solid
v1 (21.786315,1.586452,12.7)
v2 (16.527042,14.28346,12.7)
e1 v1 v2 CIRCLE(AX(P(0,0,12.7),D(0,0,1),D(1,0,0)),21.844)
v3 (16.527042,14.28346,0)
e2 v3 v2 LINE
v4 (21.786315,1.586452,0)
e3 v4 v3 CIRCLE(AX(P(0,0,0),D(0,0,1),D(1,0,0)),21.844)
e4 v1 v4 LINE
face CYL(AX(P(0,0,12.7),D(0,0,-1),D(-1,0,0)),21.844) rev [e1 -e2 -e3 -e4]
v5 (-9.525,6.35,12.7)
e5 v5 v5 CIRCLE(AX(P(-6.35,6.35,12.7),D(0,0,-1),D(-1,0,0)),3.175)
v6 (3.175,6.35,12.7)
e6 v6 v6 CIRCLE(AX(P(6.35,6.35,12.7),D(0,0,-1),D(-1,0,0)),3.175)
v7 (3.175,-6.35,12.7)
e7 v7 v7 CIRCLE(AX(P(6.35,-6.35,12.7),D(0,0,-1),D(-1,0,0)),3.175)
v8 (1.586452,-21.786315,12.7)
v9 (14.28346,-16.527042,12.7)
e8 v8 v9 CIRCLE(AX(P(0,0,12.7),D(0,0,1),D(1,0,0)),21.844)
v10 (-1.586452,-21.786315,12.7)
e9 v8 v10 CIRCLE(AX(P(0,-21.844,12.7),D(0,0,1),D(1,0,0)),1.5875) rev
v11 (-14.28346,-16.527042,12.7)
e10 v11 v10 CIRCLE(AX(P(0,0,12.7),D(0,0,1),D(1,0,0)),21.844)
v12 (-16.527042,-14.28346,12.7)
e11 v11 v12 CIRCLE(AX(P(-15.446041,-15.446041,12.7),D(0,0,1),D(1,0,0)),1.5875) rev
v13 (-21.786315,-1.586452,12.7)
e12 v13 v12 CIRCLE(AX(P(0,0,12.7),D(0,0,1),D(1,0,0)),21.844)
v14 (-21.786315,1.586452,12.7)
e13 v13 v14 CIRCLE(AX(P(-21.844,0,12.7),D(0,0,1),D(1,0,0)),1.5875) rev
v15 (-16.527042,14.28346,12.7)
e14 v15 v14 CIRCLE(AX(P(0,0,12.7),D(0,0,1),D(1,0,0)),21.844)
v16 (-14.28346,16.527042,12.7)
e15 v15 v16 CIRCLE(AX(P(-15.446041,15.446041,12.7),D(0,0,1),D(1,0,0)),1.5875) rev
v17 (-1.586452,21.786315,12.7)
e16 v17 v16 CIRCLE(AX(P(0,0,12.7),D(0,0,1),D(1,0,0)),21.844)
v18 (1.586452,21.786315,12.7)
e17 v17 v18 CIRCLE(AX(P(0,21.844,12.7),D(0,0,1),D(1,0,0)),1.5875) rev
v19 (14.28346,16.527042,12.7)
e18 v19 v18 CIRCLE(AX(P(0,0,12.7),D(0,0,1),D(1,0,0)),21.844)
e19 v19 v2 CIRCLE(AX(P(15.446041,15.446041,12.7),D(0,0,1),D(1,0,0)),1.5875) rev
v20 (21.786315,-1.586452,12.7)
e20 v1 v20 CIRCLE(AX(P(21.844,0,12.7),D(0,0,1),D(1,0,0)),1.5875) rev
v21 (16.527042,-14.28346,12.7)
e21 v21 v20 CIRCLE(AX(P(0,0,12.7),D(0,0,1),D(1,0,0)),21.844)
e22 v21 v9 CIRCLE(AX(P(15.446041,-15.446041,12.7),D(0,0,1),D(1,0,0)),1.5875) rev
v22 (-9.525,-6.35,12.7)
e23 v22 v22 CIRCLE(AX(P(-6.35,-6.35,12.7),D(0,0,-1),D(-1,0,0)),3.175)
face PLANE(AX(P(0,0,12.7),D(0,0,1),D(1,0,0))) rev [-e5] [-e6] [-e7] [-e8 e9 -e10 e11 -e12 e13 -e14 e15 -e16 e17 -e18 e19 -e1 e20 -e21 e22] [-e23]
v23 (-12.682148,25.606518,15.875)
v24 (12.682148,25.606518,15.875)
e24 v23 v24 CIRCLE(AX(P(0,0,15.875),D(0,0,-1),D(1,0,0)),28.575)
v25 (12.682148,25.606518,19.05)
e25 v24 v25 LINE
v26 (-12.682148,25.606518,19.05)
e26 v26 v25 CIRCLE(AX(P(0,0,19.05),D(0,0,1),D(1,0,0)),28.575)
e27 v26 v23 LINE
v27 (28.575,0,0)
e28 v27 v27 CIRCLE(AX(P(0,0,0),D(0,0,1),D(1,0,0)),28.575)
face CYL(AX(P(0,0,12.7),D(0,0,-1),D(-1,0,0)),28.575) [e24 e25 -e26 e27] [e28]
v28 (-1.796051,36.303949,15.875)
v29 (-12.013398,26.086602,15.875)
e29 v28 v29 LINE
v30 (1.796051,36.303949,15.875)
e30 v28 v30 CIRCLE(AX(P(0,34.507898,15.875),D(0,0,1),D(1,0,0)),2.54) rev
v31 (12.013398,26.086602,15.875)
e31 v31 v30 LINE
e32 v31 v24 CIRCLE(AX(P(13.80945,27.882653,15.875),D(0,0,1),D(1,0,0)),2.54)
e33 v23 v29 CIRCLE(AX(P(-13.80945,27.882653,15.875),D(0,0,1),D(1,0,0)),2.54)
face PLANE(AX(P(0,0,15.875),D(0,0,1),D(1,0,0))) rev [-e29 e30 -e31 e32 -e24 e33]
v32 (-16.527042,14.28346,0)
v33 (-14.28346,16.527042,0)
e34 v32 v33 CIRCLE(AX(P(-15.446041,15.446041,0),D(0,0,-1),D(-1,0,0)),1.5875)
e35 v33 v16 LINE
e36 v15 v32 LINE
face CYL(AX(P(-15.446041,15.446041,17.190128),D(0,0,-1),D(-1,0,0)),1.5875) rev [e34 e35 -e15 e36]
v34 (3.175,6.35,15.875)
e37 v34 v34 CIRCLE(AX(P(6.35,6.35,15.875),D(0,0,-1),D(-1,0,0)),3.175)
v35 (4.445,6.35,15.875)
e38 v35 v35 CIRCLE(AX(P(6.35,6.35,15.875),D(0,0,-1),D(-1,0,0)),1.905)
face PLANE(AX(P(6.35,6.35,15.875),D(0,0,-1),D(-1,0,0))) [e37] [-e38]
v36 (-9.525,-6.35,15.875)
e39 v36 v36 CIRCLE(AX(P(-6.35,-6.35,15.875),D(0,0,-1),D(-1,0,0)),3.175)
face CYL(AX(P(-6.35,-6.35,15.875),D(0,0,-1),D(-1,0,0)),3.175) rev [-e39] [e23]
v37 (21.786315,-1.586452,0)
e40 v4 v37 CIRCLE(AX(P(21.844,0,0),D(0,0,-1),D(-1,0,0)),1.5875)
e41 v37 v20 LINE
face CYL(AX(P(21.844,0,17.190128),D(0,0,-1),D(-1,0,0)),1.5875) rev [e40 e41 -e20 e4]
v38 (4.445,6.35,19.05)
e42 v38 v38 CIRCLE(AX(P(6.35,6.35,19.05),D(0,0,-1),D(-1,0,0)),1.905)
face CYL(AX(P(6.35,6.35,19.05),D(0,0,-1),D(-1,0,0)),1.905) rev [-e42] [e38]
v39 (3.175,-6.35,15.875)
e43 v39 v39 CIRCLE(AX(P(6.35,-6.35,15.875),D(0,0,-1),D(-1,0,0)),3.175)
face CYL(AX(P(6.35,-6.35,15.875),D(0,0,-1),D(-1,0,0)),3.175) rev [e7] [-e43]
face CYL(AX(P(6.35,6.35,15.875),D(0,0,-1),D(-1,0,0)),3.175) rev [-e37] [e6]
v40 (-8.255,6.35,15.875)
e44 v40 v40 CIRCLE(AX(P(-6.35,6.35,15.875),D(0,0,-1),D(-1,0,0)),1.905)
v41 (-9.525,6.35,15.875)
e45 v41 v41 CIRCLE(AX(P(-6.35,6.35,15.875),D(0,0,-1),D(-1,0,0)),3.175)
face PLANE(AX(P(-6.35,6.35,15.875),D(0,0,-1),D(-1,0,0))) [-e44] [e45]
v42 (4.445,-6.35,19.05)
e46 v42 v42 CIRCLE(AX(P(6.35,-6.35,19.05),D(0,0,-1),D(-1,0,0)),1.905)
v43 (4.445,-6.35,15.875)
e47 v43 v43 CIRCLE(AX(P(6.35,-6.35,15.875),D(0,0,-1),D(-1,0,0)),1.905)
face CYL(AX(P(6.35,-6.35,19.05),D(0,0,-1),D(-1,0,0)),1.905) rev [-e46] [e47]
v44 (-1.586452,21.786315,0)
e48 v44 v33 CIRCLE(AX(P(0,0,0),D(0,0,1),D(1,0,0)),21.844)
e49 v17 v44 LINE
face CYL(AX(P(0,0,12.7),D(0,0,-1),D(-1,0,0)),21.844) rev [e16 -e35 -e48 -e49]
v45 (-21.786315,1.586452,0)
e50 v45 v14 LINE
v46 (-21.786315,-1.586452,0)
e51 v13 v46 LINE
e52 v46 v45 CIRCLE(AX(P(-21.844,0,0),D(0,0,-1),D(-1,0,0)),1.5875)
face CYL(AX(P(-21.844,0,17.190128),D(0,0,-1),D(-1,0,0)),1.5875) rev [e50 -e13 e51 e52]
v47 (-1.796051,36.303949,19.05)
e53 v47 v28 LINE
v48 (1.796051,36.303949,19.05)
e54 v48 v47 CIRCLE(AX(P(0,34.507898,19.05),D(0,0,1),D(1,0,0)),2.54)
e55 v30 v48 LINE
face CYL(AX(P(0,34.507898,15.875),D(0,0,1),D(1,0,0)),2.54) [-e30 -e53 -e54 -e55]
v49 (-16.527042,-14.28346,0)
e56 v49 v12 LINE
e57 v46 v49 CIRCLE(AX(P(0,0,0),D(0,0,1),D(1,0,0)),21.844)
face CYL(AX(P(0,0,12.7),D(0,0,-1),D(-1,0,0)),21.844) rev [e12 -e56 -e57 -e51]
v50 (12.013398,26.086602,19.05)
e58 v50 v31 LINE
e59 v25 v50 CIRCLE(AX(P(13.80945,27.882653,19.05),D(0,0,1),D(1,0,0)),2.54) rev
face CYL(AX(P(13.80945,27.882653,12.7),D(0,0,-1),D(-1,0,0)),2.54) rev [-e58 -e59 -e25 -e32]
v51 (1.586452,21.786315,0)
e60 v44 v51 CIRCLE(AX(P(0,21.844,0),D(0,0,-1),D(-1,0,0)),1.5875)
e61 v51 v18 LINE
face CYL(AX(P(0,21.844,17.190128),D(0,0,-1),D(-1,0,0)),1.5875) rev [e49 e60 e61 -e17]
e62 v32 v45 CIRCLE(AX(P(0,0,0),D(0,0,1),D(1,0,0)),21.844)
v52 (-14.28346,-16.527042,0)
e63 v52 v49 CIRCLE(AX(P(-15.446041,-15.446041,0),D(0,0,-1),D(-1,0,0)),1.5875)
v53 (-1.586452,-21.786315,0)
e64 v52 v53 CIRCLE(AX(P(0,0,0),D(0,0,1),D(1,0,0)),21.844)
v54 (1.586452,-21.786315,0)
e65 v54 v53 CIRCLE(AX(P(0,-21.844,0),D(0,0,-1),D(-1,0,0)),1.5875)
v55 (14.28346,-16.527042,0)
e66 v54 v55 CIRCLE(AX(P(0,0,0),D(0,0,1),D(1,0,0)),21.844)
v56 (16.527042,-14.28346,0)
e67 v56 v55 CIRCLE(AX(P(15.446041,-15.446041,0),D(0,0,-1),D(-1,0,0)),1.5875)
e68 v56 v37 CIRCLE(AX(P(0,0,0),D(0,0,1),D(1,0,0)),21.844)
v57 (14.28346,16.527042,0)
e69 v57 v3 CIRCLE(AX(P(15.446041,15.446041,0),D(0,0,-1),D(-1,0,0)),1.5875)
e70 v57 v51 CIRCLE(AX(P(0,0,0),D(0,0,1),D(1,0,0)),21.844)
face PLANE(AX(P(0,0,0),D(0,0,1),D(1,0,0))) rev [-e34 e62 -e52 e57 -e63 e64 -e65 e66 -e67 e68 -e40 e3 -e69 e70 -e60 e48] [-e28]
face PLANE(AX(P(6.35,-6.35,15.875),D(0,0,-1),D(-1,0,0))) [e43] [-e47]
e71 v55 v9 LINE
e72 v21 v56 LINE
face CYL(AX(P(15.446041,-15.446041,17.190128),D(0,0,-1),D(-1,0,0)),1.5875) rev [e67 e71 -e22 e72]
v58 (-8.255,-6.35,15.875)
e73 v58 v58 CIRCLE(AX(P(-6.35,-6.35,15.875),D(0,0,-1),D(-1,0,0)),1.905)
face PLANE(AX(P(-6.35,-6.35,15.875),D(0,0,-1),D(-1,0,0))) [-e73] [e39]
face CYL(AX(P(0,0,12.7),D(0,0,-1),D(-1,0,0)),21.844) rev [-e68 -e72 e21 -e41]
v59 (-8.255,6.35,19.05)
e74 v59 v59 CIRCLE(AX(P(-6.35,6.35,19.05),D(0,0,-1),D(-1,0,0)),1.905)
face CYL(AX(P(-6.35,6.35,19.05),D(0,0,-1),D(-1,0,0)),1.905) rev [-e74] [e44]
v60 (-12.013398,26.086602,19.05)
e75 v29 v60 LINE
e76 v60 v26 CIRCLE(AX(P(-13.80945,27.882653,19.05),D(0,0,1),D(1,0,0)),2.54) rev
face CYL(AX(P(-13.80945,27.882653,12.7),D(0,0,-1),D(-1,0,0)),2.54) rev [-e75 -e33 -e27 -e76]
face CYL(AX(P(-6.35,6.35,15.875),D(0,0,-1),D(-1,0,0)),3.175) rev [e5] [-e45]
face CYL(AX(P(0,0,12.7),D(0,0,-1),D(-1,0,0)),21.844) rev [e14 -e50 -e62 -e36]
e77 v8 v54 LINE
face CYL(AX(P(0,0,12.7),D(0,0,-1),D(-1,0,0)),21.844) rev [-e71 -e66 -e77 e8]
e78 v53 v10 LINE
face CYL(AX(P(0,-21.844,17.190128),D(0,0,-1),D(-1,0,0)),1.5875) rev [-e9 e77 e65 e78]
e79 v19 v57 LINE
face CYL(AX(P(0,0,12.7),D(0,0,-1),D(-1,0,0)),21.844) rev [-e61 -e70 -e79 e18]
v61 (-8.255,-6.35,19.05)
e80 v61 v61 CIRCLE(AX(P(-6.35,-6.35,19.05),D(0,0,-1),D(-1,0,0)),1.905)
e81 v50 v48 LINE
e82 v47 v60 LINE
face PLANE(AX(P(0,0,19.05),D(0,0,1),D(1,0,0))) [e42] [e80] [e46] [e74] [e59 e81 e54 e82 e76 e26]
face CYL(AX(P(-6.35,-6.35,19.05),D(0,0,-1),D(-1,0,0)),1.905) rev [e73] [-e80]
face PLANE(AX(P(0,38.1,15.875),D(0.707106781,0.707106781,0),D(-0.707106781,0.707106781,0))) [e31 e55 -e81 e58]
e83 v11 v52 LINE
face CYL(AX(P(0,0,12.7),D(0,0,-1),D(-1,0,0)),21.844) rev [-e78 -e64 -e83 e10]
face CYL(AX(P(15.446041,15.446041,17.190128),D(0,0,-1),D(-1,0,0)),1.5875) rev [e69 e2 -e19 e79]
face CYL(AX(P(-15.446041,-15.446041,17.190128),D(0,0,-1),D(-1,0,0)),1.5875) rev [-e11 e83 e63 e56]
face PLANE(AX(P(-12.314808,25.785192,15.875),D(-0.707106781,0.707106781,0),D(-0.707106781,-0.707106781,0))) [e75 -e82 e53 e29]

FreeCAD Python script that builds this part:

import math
import FreeCAD as App
import Part
import Sketcher
Q = App.Units.Quantity


def edges_at(feature, points):
    """Names of the edges that pass closest to the given points."""
    edges = feature.Shape.Edges
    near = lambda p: min(range(len(edges)), key=lambda i: edges[i].distToShape(Part.Vertex(*p))[0])
    return sorted({f"Edge{near(p) + 1}" for p in points})

doc = App.newDocument("Part")
body = doc.addObject("PartDesign::Body", "Body")

# Sketch on XY plane
sketch1 = body.newObject("Sketcher::SketchObject", "Sketch")
sketch1.AttachmentSupport = (doc.getObject("XY_Plane"), [""])
sketch1.MapMode = "FlatFace"
sketch1.addGeometry([
    Part.Circle(App.Vector(0, 0, 0), App.Vector(0, 0, 1), 29),
    Part.Circle(App.Vector(0, 0, 0), App.Vector(0, 0, 1), 22),
], False)
sketch1.addConstraint([
    Sketcher.Constraint("Coincident", 0, 3, -1, 1),
    Sketcher.Constraint("Coincident", 1, 3, -1, 1),
    Sketcher.Constraint("Diameter", 0, Q("2.25 in")),
    Sketcher.Constraint("Diameter", 1, Q("1.72 in")),
])
pad1 = body.newObject("PartDesign::Pad", "Pad")
pad1.Profile = sketch1
pad1.Length = Q("0.5 in")

# Sketch on XY plane
sketch2 = body.newObject("Sketcher::SketchObject", "Sketch001")
sketch2.AttachmentSupport = (doc.getObject("XY_Plane"), [""])
sketch2.MapMode = "FlatFace"
sketch2.AttachmentOffset = App.Placement(App.Vector(0, 0, 0.5 * 25.4), App.Rotation())
sketch2.addGeometry(Part.Circle(App.Vector(0, 0, 0), App.Vector(0, 0, 1), 29), False)
sketch2.addConstraint([
    Sketcher.Constraint("Coincident", 0, 3, -1, 1),
    Sketcher.Constraint("Diameter", 0, Q("2.25 in")),
])
pad2 = body.newObject("PartDesign::Pad", "Pad001")
pad2.Profile = sketch2
pad2.Length = Q("0.25 in")

# Sketch on XY plane
sketch3 = body.newObject("Sketcher::SketchObject", "Sketch002")
sketch3.AttachmentSupport = (doc.getObject("XY_Plane"), [""])
sketch3.MapMode = "FlatFace"
sketch3.AttachmentOffset = App.Placement(App.Vector(0, 0, 0.625 * 25.4), App.Rotation())
sketch3.addGeometry([
    Part.LineSegment(App.Vector(0, 38, 0), App.Vector(-12, 26, 0)),
    Part.ArcOfCircle(Part.Circle(App.Vector(0, 0, 0), App.Vector(0, 0, 1), 29), math.radians(64), math.radians(116)),
    Part.LineSegment(App.Vector(12, 26, 0), App.Vector(0, 38, 0)),
], False)
sketch3.addConstraint([
    Sketcher.Constraint("Coincident", 0, 2, 1, 2),
    Sketcher.Constraint("Coincident", 1, 1, 2, 1),
    Sketcher.Constraint("Coincident", 2, 2, 0, 1),
    Sketcher.Constraint("Coincident", 1, 3, -1, 1),
    Sketcher.Constraint("PointOnObject", 2, 2, -2),
    Sketcher.Constraint("Perpendicular", 0, 2),
    Sketcher.Constraint("Horizontal", 0, 2, 1, 1),
    Sketcher.Constraint("Radius", 1, Q("1.125 in")),
    Sketcher.Constraint("DistanceY", -1, 1, 2, 2, Q("1.5 in")),
])
pad3 = body.newObject("PartDesign::Pad", "Pad002")
pad3.Profile = sketch3
pad3.Length = Q("0.125 in")
doc.recompute()

fillet = body.newObject("PartDesign::Fillet", "Fillet")
fillet.Base = (pad3, edges_at(pad3, [(12.315, 25.785, 17.462), (-12.315, 25.785, 17.462), (0, 38.1, 17.462)]))
fillet.Radius = Q("0.1 in")

# Sketch on XY plane
sketch4 = body.newObject("Sketcher::SketchObject", "Sketch003")
sketch4.AttachmentSupport = (doc.getObject("XY_Plane"), [""])
sketch4.MapMode = "FlatFace"
sketch4.addGeometry([
    Part.Circle(App.Vector(0, 21.8, 0), App.Vector(0, 0, 1), 1.6),  # 0
    Part.Circle(App.Vector(-15.4, 15.4, 0), App.Vector(0, 0, 1), 1.6),  # 1
    Part.Circle(App.Vector(-21.8, 0, 0), App.Vector(0, 0, 1), 1.6),  # 2
    Part.Circle(App.Vector(-15.4, -15.4, 0), App.Vector(0, 0, 1), 1.6),  # 3
    Part.Circle(App.Vector(0, -21.8, 0), App.Vector(0, 0, 1), 1.6),  # 4
    Part.Circle(App.Vector(15.4, -15.4, 0), App.Vector(0, 0, 1), 1.6),  # 5
    Part.Circle(App.Vector(21.8, 0, 0), App.Vector(0, 0, 1), 1.6),  # 6
    Part.Circle(App.Vector(15.4, 15.4, 0), App.Vector(0, 0, 1), 1.6),  # 7
], False)
sketch4.addConstraint([
    Sketcher.Constraint("Equal", 0, 1),
    Sketcher.Constraint("Equal", 1, 2),
    Sketcher.Constraint("Equal", 2, 3),
    Sketcher.Constraint("Equal", 3, 4),
    Sketcher.Constraint("Equal", 4, 5),
    Sketcher.Constraint("Equal", 5, 6),
    Sketcher.Constraint("Equal", 6, 7),
    Sketcher.Constraint("Symmetric", 0, 3, 4, 3, -1, 1),
    Sketcher.Constraint("Symmetric", 1, 3, 5, 3, -1, 1),
    Sketcher.Constraint("Symmetric", 2, 3, 6, 3, -1, 1),
    Sketcher.Constraint("Symmetric", 3, 3, 7, 3, -1, 1),
    Sketcher.Constraint("Symmetric", 3, 3, 5, 3, -2),
    Sketcher.Constraint("PointOnObject", 0, 3, -2),
    Sketcher.Constraint("PointOnObject", 2, 3, -1),
    Sketcher.Constraint("Diameter", 0, Q("0.125 in")),
    Sketcher.Constraint("DistanceY", -1, 1, 0, 3, Q("0.86 in")),
    Sketcher.Constraint("DistanceX", 2, 3, -1, 1, Q("0.86 in")),
    Sketcher.Constraint("DistanceX", 1, 3, -1, 1, 15.446041),
    Sketcher.Constraint("DistanceY", -1, 1, 1, 3, 15.446041),
])
pocket1 = body.newObject("PartDesign::Pocket", "Pocket")
pocket1.Profile = sketch4
pocket1.Length = Q("0.5 in")
pocket1.Reversed = True

# Sketch on XY plane
sketch5 = body.newObject("Sketcher::SketchObject", "Sketch004")
sketch5.AttachmentSupport = (doc.getObject("XY_Plane"), [""])
sketch5.MapMode = "FlatFace"
sketch5.AttachmentOffset = App.Placement(App.Vector(0, 0, 0.5 * 25.4), App.Rotation())
sketch5.addGeometry([
    Part.Circle(App.Vector(6.3, 6.3, 0), App.Vector(0, 0, 1), 3.2),
    Part.Circle(App.Vector(-6.3, 6.3, 0), App.Vector(0, 0, 1), 3.2),
    Part.Circle(App.Vector(-6.3, -6.3, 0), App.Vector(0, 0, 1), 3.2),
    Part.Circle(App.Vector(6.3, -6.3, 0), App.Vector(0, 0, 1), 3.2),
], False)
sketch5.addConstraint([
    Sketcher.Constraint("Equal", 0, 1),
    Sketcher.Constraint("Equal", 1, 2),
    Sketcher.Constraint("Equal", 2, 3),
    Sketcher.Constraint("Symmetric", 0, 3, 2, 3, -1, 1),
    Sketcher.Constraint("Symmetric", 1, 3, 3, 3, -1, 1),
    Sketcher.Constraint("Symmetric", 0, 3, 1, 3, -2),
    Sketcher.Constraint("Diameter", 0, Q("0.25 in")),
    Sketcher.Constraint("DistanceX", 1, 3, 0, 3, Q("0.5 in")),
    Sketcher.Constraint("DistanceY", 2, 3, 1, 3, Q("0.5 in")),
])
pocket2 = body.newObject("PartDesign::Pocket", "Pocket001")
pocket2.Profile = sketch5
pocket2.Length = Q("0.125 in")
pocket2.Reversed = True

# Sketch on XY plane
sketch6 = body.newObject("Sketcher::SketchObject", "Sketch005")
sketch6.AttachmentSupport = (doc.getObject("XY_Plane"), [""])
sketch6.MapMode = "FlatFace"
sketch6.AttachmentOffset = App.Placement(App.Vector(0, 0, 0.625 * 25.4), App.Rotation())
sketch6.addGeometry([
    Part.Circle(App.Vector(6.3, 6.3, 0), App.Vector(0, 0, 1), 1.9),
    Part.Circle(App.Vector(-6.3, 6.3, 0), App.Vector(0, 0, 1), 1.9),
    Part.Circle(App.Vector(-6.3, -6.3, 0), App.Vector(0, 0, 1), 1.9),
    Part.Circle(App.Vector(6.3, -6.3, 0), App.Vector(0, 0, 1), 1.9),
], False)
sketch6.addConstraint([
    Sketcher.Constraint("Equal", 0, 1),
    Sketcher.Constraint("Equal", 1, 2),
    Sketcher.Constraint("Equal", 2, 3),
    Sketcher.Constraint("Symmetric", 0, 3, 2, 3, -1, 1),
    Sketcher.Constraint("Symmetric", 1, 3, 3, 3, -1, 1),
    Sketcher.Constraint("Symmetric", 0, 3, 1, 3, -2),
    Sketcher.Constraint("Diameter", 0, Q("0.15 in")),
    Sketcher.Constraint("DistanceX", 1, 3, 0, 3, Q("0.5 in")),
    Sketcher.Constraint("DistanceY", 2, 3, 1, 3, Q("0.5 in")),
])
pocket3 = body.newObject("PartDesign::Pocket", "Pocket002")
pocket3.Profile = sketch6
pocket3.Type = "ThroughAll"
pocket3.Reversed = True

doc.recompute()
